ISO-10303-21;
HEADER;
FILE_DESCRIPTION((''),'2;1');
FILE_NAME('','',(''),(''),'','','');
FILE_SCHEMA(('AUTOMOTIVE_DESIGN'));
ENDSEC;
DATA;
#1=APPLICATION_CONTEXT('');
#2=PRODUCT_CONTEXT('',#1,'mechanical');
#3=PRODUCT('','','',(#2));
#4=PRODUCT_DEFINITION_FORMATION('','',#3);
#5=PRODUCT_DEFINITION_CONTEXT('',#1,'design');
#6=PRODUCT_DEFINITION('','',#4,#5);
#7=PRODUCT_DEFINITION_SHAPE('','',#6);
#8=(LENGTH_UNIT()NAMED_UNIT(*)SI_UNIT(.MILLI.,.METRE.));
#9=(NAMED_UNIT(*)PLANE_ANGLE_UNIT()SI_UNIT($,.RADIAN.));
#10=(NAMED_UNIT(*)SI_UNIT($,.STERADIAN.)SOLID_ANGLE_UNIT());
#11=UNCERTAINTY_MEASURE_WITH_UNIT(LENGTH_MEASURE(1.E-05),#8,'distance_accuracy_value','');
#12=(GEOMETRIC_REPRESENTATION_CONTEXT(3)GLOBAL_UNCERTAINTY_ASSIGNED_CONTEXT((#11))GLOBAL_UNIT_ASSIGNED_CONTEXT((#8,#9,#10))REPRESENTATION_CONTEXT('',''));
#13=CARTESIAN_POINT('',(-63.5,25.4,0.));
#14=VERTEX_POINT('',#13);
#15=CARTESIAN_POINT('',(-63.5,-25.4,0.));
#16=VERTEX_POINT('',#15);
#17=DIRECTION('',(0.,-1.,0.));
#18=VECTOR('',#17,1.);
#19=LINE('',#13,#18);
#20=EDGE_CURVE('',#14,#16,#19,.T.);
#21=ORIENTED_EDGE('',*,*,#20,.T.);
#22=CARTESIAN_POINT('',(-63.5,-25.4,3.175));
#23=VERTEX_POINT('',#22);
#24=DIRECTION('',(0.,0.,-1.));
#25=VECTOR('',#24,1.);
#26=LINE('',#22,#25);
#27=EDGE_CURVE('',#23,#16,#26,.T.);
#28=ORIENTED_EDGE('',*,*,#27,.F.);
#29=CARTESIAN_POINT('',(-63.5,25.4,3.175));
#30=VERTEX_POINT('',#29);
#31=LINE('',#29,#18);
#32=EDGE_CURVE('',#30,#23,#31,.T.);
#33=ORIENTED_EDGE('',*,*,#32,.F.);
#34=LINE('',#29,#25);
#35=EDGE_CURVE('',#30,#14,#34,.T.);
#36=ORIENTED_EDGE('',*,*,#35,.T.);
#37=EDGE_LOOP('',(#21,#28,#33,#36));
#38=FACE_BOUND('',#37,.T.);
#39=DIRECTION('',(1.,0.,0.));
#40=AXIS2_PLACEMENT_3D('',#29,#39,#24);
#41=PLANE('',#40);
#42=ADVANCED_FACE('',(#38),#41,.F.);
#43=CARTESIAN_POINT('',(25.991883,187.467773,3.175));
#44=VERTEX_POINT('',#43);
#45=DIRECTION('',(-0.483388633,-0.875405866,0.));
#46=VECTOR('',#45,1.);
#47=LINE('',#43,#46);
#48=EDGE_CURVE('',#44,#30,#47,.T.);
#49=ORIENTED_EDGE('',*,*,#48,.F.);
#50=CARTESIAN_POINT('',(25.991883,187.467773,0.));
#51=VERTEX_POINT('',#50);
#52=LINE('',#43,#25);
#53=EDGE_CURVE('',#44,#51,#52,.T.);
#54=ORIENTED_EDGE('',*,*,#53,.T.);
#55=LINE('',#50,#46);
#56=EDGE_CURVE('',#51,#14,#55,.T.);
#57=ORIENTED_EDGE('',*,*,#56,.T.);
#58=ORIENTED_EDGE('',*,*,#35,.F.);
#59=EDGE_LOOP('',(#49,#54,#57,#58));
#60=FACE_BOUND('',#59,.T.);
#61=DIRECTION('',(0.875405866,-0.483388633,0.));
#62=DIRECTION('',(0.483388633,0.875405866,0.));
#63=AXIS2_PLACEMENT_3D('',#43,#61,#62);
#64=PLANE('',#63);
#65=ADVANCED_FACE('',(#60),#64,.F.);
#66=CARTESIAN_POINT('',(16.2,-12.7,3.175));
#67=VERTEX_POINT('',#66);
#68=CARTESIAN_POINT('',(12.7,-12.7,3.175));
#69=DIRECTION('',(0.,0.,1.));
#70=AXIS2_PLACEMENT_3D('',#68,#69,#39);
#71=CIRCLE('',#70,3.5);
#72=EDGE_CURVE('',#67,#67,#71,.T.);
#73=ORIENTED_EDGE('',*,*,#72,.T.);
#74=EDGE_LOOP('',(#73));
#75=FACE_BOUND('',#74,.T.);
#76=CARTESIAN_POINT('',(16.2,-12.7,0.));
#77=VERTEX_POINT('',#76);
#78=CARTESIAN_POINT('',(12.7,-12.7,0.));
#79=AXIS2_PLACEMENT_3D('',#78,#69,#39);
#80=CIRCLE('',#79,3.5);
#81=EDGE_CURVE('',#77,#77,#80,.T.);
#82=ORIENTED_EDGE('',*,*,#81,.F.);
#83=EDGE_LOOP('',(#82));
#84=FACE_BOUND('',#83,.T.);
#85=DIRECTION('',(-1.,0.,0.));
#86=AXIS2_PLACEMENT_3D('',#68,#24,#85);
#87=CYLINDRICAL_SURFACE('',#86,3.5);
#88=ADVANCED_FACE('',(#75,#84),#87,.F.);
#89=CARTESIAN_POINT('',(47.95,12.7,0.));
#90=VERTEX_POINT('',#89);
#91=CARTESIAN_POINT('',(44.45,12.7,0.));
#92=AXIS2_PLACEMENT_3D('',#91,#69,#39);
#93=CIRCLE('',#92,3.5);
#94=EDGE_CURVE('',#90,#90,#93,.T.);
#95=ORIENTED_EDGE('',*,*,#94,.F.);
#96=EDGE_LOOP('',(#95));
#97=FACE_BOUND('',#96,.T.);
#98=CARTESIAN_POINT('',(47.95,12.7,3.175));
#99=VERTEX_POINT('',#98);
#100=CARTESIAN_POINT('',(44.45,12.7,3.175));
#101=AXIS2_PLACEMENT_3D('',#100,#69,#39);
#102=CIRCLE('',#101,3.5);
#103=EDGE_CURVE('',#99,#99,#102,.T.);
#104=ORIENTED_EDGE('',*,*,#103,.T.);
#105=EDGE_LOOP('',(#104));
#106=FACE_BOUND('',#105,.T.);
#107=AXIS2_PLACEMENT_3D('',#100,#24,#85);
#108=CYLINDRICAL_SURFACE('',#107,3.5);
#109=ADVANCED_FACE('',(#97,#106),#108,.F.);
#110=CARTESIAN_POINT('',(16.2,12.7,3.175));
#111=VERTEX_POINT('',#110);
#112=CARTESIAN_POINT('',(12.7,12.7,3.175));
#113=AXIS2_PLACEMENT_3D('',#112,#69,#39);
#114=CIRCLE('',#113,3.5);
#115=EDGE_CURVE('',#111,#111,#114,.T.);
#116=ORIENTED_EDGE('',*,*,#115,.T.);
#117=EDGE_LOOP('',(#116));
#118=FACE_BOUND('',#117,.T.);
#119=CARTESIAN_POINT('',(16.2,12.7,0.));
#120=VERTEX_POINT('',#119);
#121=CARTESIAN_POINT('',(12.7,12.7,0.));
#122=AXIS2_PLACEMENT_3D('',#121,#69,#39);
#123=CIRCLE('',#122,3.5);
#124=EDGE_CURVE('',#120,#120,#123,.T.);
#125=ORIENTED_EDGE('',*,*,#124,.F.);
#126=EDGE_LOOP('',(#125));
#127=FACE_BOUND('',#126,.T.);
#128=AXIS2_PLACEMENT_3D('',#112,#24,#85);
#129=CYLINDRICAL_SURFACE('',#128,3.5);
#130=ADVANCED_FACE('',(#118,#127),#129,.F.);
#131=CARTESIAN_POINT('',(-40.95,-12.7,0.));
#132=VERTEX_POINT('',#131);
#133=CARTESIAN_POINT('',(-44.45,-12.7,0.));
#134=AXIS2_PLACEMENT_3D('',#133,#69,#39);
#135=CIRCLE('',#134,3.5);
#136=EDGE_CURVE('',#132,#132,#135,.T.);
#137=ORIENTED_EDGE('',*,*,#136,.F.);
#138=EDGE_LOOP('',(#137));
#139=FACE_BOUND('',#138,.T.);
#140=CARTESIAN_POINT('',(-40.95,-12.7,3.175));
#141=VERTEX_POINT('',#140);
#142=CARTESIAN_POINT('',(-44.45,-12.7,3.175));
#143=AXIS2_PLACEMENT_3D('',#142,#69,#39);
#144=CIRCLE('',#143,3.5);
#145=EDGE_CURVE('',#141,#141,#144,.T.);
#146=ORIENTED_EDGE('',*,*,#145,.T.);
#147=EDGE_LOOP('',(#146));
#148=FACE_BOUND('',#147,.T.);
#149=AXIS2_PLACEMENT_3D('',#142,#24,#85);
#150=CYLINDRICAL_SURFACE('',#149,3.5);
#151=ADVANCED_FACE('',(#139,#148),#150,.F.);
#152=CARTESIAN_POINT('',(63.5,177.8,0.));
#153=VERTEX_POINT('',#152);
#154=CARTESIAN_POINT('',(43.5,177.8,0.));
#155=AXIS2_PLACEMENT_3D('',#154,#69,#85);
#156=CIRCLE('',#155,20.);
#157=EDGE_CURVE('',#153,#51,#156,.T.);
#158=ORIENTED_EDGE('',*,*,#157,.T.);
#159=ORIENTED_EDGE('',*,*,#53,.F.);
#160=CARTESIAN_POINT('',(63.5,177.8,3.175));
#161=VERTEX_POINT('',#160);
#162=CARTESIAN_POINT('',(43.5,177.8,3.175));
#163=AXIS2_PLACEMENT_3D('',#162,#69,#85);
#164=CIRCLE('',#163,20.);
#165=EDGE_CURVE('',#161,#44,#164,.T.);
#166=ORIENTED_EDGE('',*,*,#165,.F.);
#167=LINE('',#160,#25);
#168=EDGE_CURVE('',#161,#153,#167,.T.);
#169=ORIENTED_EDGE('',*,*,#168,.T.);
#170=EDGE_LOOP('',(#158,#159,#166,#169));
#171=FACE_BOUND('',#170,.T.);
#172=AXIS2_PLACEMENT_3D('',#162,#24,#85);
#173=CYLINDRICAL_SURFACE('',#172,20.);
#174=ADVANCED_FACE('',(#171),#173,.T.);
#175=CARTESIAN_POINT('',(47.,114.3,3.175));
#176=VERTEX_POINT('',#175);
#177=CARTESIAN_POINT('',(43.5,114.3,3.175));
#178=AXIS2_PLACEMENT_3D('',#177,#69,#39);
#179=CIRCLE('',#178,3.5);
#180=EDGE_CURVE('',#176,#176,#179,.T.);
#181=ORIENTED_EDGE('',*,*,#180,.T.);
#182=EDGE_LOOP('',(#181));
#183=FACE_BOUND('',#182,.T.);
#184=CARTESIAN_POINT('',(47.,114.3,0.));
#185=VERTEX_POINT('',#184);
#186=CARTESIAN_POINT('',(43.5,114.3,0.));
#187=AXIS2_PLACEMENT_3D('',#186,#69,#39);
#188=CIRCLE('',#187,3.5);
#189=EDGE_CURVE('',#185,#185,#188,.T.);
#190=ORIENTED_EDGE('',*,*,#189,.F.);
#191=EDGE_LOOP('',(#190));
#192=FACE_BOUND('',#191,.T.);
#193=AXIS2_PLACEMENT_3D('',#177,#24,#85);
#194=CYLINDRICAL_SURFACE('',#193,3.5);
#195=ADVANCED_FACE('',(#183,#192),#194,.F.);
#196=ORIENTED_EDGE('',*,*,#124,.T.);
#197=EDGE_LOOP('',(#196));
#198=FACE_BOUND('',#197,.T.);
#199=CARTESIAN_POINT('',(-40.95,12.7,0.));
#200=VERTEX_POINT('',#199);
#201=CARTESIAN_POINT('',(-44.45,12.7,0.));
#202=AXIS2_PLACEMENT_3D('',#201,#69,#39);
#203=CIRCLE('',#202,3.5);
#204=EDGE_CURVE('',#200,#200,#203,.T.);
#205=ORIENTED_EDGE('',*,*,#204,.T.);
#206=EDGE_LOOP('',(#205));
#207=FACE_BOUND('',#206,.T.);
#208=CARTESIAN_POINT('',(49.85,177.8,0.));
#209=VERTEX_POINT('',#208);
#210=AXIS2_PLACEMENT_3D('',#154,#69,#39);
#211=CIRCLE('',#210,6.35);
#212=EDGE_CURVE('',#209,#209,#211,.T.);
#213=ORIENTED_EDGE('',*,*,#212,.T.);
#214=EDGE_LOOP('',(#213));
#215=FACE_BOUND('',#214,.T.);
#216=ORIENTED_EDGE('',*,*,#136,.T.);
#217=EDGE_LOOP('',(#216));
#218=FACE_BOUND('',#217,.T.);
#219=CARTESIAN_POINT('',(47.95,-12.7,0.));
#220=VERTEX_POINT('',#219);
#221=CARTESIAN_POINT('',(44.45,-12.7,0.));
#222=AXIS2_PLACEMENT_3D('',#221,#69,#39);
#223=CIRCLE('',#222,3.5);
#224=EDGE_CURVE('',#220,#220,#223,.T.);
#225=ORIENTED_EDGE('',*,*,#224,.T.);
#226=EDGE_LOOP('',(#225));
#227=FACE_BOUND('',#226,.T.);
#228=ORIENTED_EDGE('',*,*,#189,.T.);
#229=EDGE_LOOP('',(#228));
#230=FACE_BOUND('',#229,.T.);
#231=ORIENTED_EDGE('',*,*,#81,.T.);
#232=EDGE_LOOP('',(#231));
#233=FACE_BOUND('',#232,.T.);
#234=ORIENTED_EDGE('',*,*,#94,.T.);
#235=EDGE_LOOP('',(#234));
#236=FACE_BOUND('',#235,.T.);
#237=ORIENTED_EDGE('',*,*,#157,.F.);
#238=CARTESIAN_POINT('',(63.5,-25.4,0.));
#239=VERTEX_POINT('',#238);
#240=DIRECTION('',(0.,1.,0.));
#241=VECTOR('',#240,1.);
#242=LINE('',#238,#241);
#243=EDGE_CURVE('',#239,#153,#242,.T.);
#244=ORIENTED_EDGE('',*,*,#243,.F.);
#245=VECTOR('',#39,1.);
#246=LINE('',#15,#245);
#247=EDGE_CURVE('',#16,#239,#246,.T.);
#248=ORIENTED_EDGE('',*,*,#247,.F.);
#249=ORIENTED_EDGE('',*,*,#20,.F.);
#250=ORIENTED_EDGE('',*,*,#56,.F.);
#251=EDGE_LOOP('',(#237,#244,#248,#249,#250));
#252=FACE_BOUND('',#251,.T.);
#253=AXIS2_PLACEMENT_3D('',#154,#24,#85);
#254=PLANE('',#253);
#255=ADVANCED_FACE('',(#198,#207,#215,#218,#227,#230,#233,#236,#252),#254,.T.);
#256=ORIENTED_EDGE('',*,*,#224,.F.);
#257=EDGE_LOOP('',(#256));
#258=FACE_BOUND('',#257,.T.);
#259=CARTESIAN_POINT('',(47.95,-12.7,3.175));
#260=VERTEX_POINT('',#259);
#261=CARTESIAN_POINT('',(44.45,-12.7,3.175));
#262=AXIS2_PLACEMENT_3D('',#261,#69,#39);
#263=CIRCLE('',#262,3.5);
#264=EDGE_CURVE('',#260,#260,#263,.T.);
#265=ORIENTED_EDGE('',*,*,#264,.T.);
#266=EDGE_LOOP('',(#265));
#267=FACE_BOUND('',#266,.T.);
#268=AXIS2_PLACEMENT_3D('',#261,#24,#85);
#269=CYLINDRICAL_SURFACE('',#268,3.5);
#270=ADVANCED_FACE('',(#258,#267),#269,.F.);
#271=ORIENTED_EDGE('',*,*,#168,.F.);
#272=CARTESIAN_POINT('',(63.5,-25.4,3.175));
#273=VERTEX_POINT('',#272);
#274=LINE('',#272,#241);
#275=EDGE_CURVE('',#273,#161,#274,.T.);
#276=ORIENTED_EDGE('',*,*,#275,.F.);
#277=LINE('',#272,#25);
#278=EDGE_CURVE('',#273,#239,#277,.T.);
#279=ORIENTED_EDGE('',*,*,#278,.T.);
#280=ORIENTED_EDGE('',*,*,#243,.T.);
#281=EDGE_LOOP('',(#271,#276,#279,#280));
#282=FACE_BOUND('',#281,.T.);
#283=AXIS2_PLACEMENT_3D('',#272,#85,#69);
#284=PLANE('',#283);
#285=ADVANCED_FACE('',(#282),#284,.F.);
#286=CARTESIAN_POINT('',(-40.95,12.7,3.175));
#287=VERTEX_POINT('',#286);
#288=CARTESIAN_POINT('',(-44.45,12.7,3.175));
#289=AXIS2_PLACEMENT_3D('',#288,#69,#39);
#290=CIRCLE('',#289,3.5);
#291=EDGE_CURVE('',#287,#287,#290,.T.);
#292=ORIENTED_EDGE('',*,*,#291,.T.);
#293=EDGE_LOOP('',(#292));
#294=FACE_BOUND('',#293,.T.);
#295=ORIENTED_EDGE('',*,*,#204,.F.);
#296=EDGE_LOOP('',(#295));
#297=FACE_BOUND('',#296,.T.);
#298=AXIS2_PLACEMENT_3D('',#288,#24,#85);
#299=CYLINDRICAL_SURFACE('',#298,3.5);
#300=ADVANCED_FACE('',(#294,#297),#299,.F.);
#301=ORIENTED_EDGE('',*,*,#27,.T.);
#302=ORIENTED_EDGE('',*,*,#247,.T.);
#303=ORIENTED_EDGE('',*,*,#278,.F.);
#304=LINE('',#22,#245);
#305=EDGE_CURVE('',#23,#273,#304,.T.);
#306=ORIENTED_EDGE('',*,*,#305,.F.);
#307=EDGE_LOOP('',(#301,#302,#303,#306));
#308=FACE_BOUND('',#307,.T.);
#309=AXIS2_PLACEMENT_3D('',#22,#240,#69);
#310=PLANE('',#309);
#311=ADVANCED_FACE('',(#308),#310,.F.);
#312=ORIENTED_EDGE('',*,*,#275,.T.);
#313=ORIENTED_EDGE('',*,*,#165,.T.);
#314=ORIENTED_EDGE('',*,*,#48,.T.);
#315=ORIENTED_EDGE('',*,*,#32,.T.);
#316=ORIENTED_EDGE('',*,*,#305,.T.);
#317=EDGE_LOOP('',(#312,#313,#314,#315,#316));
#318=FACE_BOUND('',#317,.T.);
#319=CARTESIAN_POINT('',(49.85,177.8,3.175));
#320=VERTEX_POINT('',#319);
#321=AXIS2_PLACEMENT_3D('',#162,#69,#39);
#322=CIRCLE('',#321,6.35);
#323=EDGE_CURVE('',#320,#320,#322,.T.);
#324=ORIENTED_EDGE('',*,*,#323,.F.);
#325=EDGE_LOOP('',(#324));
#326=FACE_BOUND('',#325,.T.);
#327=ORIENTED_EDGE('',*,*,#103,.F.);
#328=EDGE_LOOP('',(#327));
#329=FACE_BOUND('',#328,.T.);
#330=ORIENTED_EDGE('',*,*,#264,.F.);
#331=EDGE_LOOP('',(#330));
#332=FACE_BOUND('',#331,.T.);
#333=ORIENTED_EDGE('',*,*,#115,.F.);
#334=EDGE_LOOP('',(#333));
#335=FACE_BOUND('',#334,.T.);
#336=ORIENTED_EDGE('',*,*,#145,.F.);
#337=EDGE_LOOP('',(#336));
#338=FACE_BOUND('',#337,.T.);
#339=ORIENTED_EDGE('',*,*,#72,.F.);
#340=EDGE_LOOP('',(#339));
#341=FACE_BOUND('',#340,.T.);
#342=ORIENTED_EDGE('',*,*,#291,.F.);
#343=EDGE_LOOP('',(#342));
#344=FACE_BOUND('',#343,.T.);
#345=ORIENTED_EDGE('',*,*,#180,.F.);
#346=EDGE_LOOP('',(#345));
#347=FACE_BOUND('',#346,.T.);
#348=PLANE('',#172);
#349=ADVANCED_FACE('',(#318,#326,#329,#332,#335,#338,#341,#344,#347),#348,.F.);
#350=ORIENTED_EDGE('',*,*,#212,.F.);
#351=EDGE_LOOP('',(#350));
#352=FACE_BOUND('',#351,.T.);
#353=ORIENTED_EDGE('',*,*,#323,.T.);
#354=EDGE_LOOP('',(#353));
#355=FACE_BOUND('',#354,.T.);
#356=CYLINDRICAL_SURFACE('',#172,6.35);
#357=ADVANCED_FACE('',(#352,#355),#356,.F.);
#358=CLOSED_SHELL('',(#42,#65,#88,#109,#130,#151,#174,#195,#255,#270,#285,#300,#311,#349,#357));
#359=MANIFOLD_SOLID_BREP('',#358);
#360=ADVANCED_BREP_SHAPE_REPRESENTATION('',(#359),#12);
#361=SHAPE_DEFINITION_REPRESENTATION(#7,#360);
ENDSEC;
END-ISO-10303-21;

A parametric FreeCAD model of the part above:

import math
import FreeCAD as App
import Part
import Sketcher
Q = App.Units.Quantity

doc = App.newDocument("Part")
body = doc.addObject("PartDesign::Body", "Body")

# Sketch on XY plane
sketch1 = doc.addObject("Sketcher::SketchObject", "Sketch")
body.addObject(sketch1)
sketch1.AttachmentSupport = (doc.XY_Plane, [""])
sketch1.MapMode = "FlatFace"
sketch1.addGeometry(Part.LineSegment(App.Vector(-63.5, -25.4, 0), App.Vector(63.5, -25.4, 0)), False)
sketch1.addGeometry(Part.LineSegment(App.Vector(63.5, -25.4, 0), App.Vector(63.5, 177.8, 0)), False)
sketch1.addGeometry(Part.ArcOfCircle(Part.Circle(App.Vector(43.5, 177.8, 0), App.Vector(0, 0, 1), 20), math.radians(0), math.radians(151.093046)), False)
sketch1.addGeometry(Part.LineSegment(App.Vector(25.991883, 187.467773, 0), App.Vector(-63.5, 25.4, 0)), False)
sketch1.addGeometry(Part.LineSegment(App.Vector(-63.5, 25.4, 0), App.Vector(-63.5, -25.4, 0)), False)
sketch1.addGeometry(Part.Circle(App.Vector(-44.45, -12.7, 0), App.Vector(0, 0, 1), 3.5), False)
sketch1.addGeometry(Part.Circle(App.Vector(-44.45, 12.7, 0), App.Vector(0, 0, 1), 3.5), False)
sketch1.addGeometry(Part.Circle(App.Vector(12.7, -12.7, 0), App.Vector(0, 0, 1), 3.5), False)
sketch1.addGeometry(Part.Circle(App.Vector(12.7, 12.7, 0), App.Vector(0, 0, 1), 3.5), False)
sketch1.addGeometry(Part.Circle(App.Vector(44.45, -12.7, 0), App.Vector(0, 0, 1), 3.5), False)
sketch1.addGeometry(Part.Circle(App.Vector(44.45, 12.7, 0), App.Vector(0, 0, 1), 3.5), False)
sketch1.addGeometry(Part.Circle(App.Vector(43.5, 114.3, 0), App.Vector(0, 0, 1), 3.5), False)
sketch1.addGeometry(Part.Circle(App.Vector(43.5, 177.8, 0), App.Vector(0, 0, 1), 6.35), False)
sketch1.addConstraint(Sketcher.Constraint("Coincident", 0, 2, 1, 1))
sketch1.addConstraint(Sketcher.Constraint("Tangent", 1, 2, 2, 1))
sketch1.addConstraint(Sketcher.Constraint("Tangent", 2, 2, 3, 1))
sketch1.addConstraint(Sketcher.Constraint("Coincident", 3, 2, 4, 1))
sketch1.addConstraint(Sketcher.Constraint("Coincident", 4, 2, 0, 1))
sketch1.addConstraint(Sketcher.Constraint("Horizontal", 0))
sketch1.addConstraint(Sketcher.Constraint("Vertical", 1))
sketch1.addConstraint(Sketcher.Constraint("Vertical", 4))
sketch1.addConstraint(Sketcher.Constraint("Coincident", 12, 3, 2, 3))
sketch1.addConstraint(Sketcher.Constraint("Equal", 5, 6))
sketch1.addConstraint(Sketcher.Constraint("Equal", 6, 7))
sketch1.addConstraint(Sketcher.Constraint("Equal", 7, 8))
sketch1.addConstraint(Sketcher.Constraint("Equal", 8, 9))
sketch1.addConstraint(Sketcher.Constraint("Equal", 9, 10))
sketch1.addConstraint(Sketcher.Constraint("Equal", 10, 11))
sketch1.addConstraint(Sketcher.Constraint("Symmetric", 6, 3, 9, 3, -1, 1))
sketch1.addConstraint(Sketcher.Constraint("Symmetric", 5, 3, 10, 3, -1, 1))
sketch1.addConstraint(Sketcher.Constraint("Symmetric", 0, 2, 3, 2, -1, 1))
sketch1.addConstraint(Sketcher.Constraint("Symmetric", 5, 3, 9, 3, -2))
sketch1.addConstraint(Sketcher.Constraint("Symmetric", 7, 3, 8, 3, -1))
sketch1.addConstraint(Sketcher.Constraint("Horizontal", 5, 3, 7, 3))
sketch1.addConstraint(Sketcher.Constraint("Vertical", 2, 3, 11, 3))
sketch1.addConstraint(Sketcher.Constraint("Diameter", 12, Q("0.5 in")))
sketch1.addConstraint(Sketcher.Constraint("DistanceX", 0, 1, 0, 2, Q("5 in")))
sketch1.addConstraint(Sketcher.Constraint("DistanceY", 1, 1, 1, 2, Q("8 in")))
sketch1.addConstraint(Sketcher.Constraint("DistanceY", 4, 2, 4, 1, Q("2 in")))
sketch1.addConstraint(Sketcher.Constraint("DistanceY", 5, 3, 6, 3, Q("1 in")))
sketch1.addConstraint(Sketcher.Constraint("DistanceY", 10, 3, 11, 3, Q("4 in")))
sketch1.addConstraint(Sketcher.Constraint("DistanceX", 7, 3, 0, 2, Q("2 in")))
sketch1.addConstraint(Sketcher.Constraint("DistanceX", 5, 3, 9, 3, Q("3.5 in")))
sketch1.addConstraint(Sketcher.Constraint("Diameter", 5, 7.0))
sketch1.addConstraint(Sketcher.Constraint("Radius", 2, 20.0))
pad1 = doc.addObject("PartDesign::Pad", "Pad")
body.addObject(pad1)
pad1.Profile = sketch1
pad1.Length = Q("0.125 in")

doc.recompute()
